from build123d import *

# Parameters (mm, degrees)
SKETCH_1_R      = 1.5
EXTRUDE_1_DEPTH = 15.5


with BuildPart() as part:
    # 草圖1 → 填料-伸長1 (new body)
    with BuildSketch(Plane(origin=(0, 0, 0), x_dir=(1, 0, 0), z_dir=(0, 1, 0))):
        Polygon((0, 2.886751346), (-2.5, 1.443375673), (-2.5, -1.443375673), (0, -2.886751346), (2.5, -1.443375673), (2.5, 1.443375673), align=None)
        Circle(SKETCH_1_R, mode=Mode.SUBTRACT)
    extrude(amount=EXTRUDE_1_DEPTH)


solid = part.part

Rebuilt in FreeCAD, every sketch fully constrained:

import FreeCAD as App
import Part
import Sketcher
from FreeCAD import Vector
Q = App.Units.Quantity

doc = App.newDocument("Part")
params = doc.addObject("Spreadsheet::Sheet", "Params")
for row, (alias, value) in enumerate([
    ("sketch1_diameter", "3 mm"),
    ("pad1_length", "15.5 mm"),
], start=1):
    params.set(f"A{row}", alias)
    params.set(f"B{row}", "=" + value)
    params.setAlias(f"B{row}", alias)

body = doc.addObject("PartDesign::Body", "Body")

sketch1 = doc.addObject("Sketcher::SketchObject", "Sketch")
body.addObject(sketch1)
sketch1.AttachmentSupport = (doc.XZ_Plane, [""])
sketch1.MapMode = "FlatFace"
sketch1.addGeometry([
    Part.LineSegment(Vector(0, -2.886751, 0), Vector(-2.5, -1.443376, 0)),
    Part.LineSegment(Vector(-2.5, -1.443376, 0), Vector(-2.5, 1.443376, 0)),
    Part.LineSegment(Vector(-2.5, 1.443376, 0), Vector(0, 2.886751, 0)),
    Part.LineSegment(Vector(0, 2.886751, 0), Vector(2.5, 1.443376, 0)),
    Part.LineSegment(Vector(2.5, 1.443376, 0), Vector(2.5, -1.443376, 0)),
    Part.LineSegment(Vector(2.5, -1.443376, 0), Vector(0, -2.886751, 0)),
    Part.Circle(Vector(0, 0, 0), Vector(0, 0, 1), 1.5),
], False)
sketch1.addConstraint([
    Sketcher.Constraint("Coincident", 0, 2, 1, 1),
    Sketcher.Constraint("Coincident", 1, 2, 2, 1),
    Sketcher.Constraint("Coincident", 2, 2, 3, 1),
    Sketcher.Constraint("Coincident", 3, 2, 4, 1),
    Sketcher.Constraint("Coincident", 4, 2, 5, 1),
    Sketcher.Constraint("Coincident", 5, 2, 0, 1),
    Sketcher.Constraint("Vertical", 1),
    Sketcher.Constraint("Vertical", 4),
    Sketcher.Constraint("Coincident", 6, 3, -1, 1),
    Sketcher.Constraint("Symmetric", 0, 2, 3, 2, -1, 1),
    Sketcher.Constraint("Symmetric", 2, 2, 5, 2, -1, 1),
    Sketcher.Constraint("PointOnObject", 2, 2, -2),
    Sketcher.Constraint("Parallel", 2, 5),
    Sketcher.Constraint("Horizontal", 1, 2, 3, 2),
    Sketcher.Constraint("Diameter", 6, 3.0),
    Sketcher.Constraint("Angle", 0, Q("150 deg")),
    Sketcher.Constraint("DistanceX", 1, 2, 3, 2, 5.0),
    Sketcher.Constraint("DistanceY", 1, 1, 1, 2, 2.886751),
])
sketch1.setExpression("Constraints[14]", "Params.sketch1_diameter")
pad1 = doc.addObject("PartDesign::Pad", "Pad")
body.addObject(pad1)
pad1.Profile = sketch1
pad1.setExpression("Length", "Params.pad1_length")
pad1.Reversed = True

doc.recompute()
